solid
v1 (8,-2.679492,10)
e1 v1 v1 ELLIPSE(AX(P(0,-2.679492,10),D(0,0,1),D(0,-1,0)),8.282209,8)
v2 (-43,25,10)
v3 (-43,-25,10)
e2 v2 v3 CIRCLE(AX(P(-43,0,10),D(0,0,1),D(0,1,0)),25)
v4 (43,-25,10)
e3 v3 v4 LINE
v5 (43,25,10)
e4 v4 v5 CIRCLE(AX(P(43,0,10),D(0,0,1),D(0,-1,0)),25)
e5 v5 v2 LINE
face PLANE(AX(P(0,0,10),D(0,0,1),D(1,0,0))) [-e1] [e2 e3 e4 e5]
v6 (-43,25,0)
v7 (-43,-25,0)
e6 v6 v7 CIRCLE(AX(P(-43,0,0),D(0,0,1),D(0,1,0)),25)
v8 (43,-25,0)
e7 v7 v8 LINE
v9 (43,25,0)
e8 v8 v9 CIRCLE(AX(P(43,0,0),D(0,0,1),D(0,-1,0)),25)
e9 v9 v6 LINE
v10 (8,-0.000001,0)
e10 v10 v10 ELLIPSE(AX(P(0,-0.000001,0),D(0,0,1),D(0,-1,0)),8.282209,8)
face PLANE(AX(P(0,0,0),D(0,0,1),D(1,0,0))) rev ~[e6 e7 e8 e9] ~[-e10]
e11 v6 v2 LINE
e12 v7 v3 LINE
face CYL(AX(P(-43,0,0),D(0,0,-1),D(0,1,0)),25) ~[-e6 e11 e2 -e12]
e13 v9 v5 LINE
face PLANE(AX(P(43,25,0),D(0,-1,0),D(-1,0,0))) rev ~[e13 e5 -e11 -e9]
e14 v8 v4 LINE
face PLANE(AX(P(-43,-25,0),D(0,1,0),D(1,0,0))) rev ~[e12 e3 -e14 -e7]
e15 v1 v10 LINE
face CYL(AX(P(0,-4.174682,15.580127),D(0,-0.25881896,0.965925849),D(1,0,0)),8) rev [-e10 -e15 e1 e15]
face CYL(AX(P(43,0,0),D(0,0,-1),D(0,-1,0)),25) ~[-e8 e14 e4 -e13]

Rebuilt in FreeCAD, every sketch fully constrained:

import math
import FreeCAD as App
import Part
import Sketcher

doc = App.newDocument("Part")
body = doc.addObject("PartDesign::Body", "Body")

# Sketch on XY plane
sketch1 = body.newObject("Sketcher::SketchObject", "Sketch")
sketch1.AttachmentSupport = (doc.getObject("XY_Plane"), [""])
sketch1.MapMode = "FlatFace"
sketch1.addGeometry(Part.LineSegment(App.Vector(43, 25, 0), App.Vector(-43, 25, 0)), False)
sketch1.addGeometry(Part.ArcOfCircle(Part.Circle(App.Vector(-43, 0, 0), App.Vector(0, 0, 1), 25), math.radians(90), math.radians(270)), False)
sketch1.addGeometry(Part.LineSegment(App.Vector(-43, -25, 0), App.Vector(43, -25, 0)), False)
sketch1.addGeometry(Part.ArcOfCircle(Part.Circle(App.Vector(43, 0, 0), App.Vector(0, 0, 1), 25), math.radians(-90), math.radians(90)), False)
sketch1.addConstraint(Sketcher.Constraint("Tangent", 0, 2, 1, 1))
sketch1.addConstraint(Sketcher.Constraint("Tangent", 1, 2, 2, 1))
sketch1.addConstraint(Sketcher.Constraint("Tangent", 2, 2, 3, 1))
sketch1.addConstraint(Sketcher.Constraint("Tangent", 3, 2, 0, 1))
sketch1.addConstraint(Sketcher.Constraint("Horizontal", 0))
sketch1.addConstraint(Sketcher.Constraint("Horizontal", 2))
sketch1.addConstraint(Sketcher.Constraint("Symmetric", 1, 3, 3, 3, -1, 1))
sketch1.addConstraint(Sketcher.Constraint("Radius", 1, 25.0))
sketch1.addConstraint(Sketcher.Constraint("DistanceX", 0, 2, 0, 1, 86.0))
pad1 = body.newObject("PartDesign::Pad", "Pad")
pad1.Profile = sketch1
pad1.Length = 10

# Sketch on an angled plane
sketch2 = body.newObject("Sketcher::SketchObject", "Sketch001")
sketch2.Placement = App.Placement(App.Vector(0, -4.174682, 15.580127), App.Rotation(App.Vector(1, 0, 0), App.Vector(0, -0.965925849, -0.25881896), App.Vector(0, 0.25881896, -0.965925849), "ZXY"))
sketch2.addGeometry(Part.Circle(App.Vector(0, 0, 0), App.Vector(0, 0, 1), 8), False)
sketch2.addConstraint(Sketcher.Constraint("Coincident", 0, 3, -1, 1))
sketch2.addConstraint(Sketcher.Constraint("Diameter", 0, 16.0))
pocket1 = body.newObject("PartDesign::Pocket", "Pocket")
pocket1.Profile = sketch2
pocket1.Length = 25
pocket1.Reversed = True

doc.recompute()
